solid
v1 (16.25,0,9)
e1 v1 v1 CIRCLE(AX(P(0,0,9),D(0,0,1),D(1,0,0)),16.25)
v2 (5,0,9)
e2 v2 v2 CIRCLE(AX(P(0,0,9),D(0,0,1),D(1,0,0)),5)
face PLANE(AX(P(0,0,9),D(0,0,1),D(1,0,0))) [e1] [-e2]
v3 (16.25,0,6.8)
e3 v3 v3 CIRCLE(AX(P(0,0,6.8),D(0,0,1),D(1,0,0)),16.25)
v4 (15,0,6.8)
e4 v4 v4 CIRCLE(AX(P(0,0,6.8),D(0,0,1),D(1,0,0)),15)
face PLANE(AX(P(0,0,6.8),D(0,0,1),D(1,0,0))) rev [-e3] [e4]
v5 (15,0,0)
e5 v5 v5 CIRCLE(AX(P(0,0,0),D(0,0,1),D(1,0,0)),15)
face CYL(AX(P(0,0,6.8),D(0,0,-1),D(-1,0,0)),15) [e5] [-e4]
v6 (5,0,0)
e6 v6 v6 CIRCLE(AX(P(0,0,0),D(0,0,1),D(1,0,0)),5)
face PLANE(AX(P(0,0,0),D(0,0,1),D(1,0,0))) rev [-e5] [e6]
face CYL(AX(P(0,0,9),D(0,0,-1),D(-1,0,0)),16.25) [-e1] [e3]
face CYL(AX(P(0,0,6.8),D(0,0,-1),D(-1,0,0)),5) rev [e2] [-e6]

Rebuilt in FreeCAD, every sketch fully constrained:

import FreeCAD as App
import Part
import Sketcher

doc = App.newDocument("Part")
body = doc.addObject("PartDesign::Body", "Body")

# Sketch on XY plane
sketch1 = body.newObject("Sketcher::SketchObject", "Sketch")
sketch1.AttachmentSupport = (doc.getObject("XY_Plane"), [""])
sketch1.MapMode = "FlatFace"
sketch1.addGeometry([
    Part.Circle(App.Vector(0, 0, 0), App.Vector(0, 0, 1), 15),
    Part.Circle(App.Vector(0, 0, 0), App.Vector(0, 0, 1), 5),
], False)
sketch1.addConstraint([
    Sketcher.Constraint("Coincident", 0, 3, -1, 1),
    Sketcher.Constraint("Coincident", 1, 3, -1, 1),
    Sketcher.Constraint("Diameter", 0, 30.0),
    Sketcher.Constraint("Diameter", 1, 10.0),
])
pad1 = body.newObject("PartDesign::Pad", "Pad")
pad1.Profile = sketch1
pad1.Length = 6.8

# Sketch on XY plane
sketch2 = body.newObject("Sketcher::SketchObject", "Sketch001")
sketch2.AttachmentSupport = (doc.getObject("XY_Plane"), [""])
sketch2.MapMode = "FlatFace"
sketch2.AttachmentOffset = App.Placement(App.Vector(0, 0, 6.8), App.Rotation())
sketch2.addGeometry([
    Part.Circle(App.Vector(0, 0, 0), App.Vector(0, 0, 1), 16.25),
    Part.Circle(App.Vector(0, 0, 0), App.Vector(0, 0, 1), 5),
], False)
sketch2.addConstraint([
    Sketcher.Constraint("Coincident", 0, 3, -1, 1),
    Sketcher.Constraint("Coincident", 1, 3, -1, 1),
    Sketcher.Constraint("Diameter", 1, 10.0),
    Sketcher.Constraint("Diameter", 0, 32.5),
])
pad2 = body.newObject("PartDesign::Pad", "Pad001")
pad2.Profile = sketch2
pad2.Length = 2.2

doc.recompute()
